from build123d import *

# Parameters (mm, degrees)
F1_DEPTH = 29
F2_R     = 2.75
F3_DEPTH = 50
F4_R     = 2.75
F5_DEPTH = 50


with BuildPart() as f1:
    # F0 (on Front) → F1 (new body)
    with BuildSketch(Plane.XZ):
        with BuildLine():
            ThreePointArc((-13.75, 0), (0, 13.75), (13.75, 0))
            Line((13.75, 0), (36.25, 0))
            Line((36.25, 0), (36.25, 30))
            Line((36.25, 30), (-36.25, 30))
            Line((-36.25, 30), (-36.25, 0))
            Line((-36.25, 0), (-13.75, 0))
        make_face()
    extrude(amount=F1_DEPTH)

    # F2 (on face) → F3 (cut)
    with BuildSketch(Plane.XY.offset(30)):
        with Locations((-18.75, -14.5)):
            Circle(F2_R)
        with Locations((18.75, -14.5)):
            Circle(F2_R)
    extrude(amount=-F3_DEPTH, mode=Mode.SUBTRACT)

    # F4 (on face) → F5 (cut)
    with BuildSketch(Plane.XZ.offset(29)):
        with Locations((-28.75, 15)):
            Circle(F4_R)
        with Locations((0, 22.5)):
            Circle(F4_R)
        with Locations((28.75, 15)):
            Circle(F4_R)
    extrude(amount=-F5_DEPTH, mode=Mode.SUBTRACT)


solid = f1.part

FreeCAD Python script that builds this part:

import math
import FreeCAD as App
import Part
import Sketcher
Q = App.Units.Quantity

doc = App.newDocument("Part")
body = doc.addObject("PartDesign::Body", "Body")

# Sketch on XZ plane
sketch1 = body.newObject("Sketcher::SketchObject", "Sketch")
sketch1.AttachmentSupport = (doc.getObject("XZ_Plane"), [""])
sketch1.MapMode = "FlatFace"
sketch1.addGeometry([
    Part.ArcOfCircle(Part.Circle(App.Vector(0, 0, 0), App.Vector(0, 0, 1), 14), math.radians(0), math.radians(180)),  # 0
    Part.LineSegment(App.Vector(14, 0, 0), App.Vector(36, 0, 0)),  # 1
    Part.LineSegment(App.Vector(36, 0, 0), App.Vector(36, 30, 0)),  # 2
    Part.LineSegment(App.Vector(36, 30, 0), App.Vector(-36, 30, 0)),  # 3
    Part.LineSegment(App.Vector(-36, 30, 0), App.Vector(-36, 0, 0)),  # 4
    Part.LineSegment(App.Vector(-36, 0, 0), App.Vector(-14, 0, 0)),  # 5
], False)
sketch1.addConstraint([
    Sketcher.Constraint("Coincident", 0, 1, 1, 1),
    Sketcher.Constraint("Coincident", 1, 2, 2, 1),
    Sketcher.Constraint("Coincident", 2, 2, 3, 1),
    Sketcher.Constraint("Coincident", 3, 2, 4, 1),
    Sketcher.Constraint("Coincident", 4, 2, 5, 1),
    Sketcher.Constraint("Coincident", 5, 2, 0, 2),
    Sketcher.Constraint("Horizontal", 1),
    Sketcher.Constraint("Vertical", 2),
    Sketcher.Constraint("Horizontal", 3),
    Sketcher.Constraint("Vertical", 4),
    Sketcher.Constraint("Horizontal", 5),
    Sketcher.Constraint("Coincident", 0, 3, -1, 1),
    Sketcher.Constraint("Symmetric", 1, 2, 4, 2, -1, 1),
    Sketcher.Constraint("PointOnObject", 0, 1, -1),
    Sketcher.Constraint("DistanceY", 2, 1, 2, 2, Q("30 mm")),
    Sketcher.Constraint("Radius", 0, Q("13.75 mm")),
    Sketcher.Constraint("DistanceX", 1, 1, 1, 2, Q("22.5 mm")),
])
pad1 = body.newObject("PartDesign::Pad", "Pad")
pad1.Profile = sketch1
pad1.Length = 29

# Sketch on XY plane
sketch2 = body.newObject("Sketcher::SketchObject", "Sketch001")
sketch2.AttachmentSupport = (doc.getObject("XY_Plane"), [""])
sketch2.MapMode = "FlatFace"
sketch2.AttachmentOffset = App.Placement(App.Vector(0, 0, 30), App.Rotation())
sketch2.addGeometry([
    Part.Circle(App.Vector(-18.8, -14.5, 0), App.Vector(0, 0, 1), 2.8),
    Part.Circle(App.Vector(18.8, -14.5, 0), App.Vector(0, 0, 1), 2.8),
], False)
sketch2.addConstraint([
    Sketcher.Constraint("Equal", 0, 1),
    Sketcher.Constraint("Symmetric", 0, 3, 1, 3, -2),
    Sketcher.Constraint("Diameter", 0, Q("5.5 mm")),
    Sketcher.Constraint("DistanceY", 0, 3, -1, 1, Q("14.5 mm")),
    Sketcher.Constraint("DistanceX", 0, 3, 1, 3, Q("37.5 mm")),
])
pocket1 = body.newObject("PartDesign::Pocket", "Pocket")
pocket1.Profile = sketch2
pocket1.Length = 50

# Sketch on XZ plane
sketch3 = body.newObject("Sketcher::SketchObject", "Sketch002")
sketch3.AttachmentSupport = (doc.getObject("XZ_Plane"), [""])
sketch3.MapMode = "FlatFace"
sketch3.AttachmentOffset = App.Placement(App.Vector(0, 0, 29), App.Rotation())
sketch3.addGeometry([
    Part.Circle(App.Vector(-28.8, 15, 0), App.Vector(0, 0, 1), 2.8),
    Part.Circle(App.Vector(0, 22.5, 0), App.Vector(0, 0, 1), 2.8),
    Part.Circle(App.Vector(28.8, 15, 0), App.Vector(0, 0, 1), 2.8),
], False)
sketch3.addConstraint([
    Sketcher.Constraint("Equal", 0, 1),
    Sketcher.Constraint("Equal", 1, 2),
    Sketcher.Constraint("Symmetric", 0, 3, 2, 3, -2),
    Sketcher.Constraint("PointOnObject", 1, 3, -2),
    Sketcher.Constraint("Diameter", 0, Q("5.5 mm")),
    Sketcher.Constraint("DistanceY", -1, 1, 0, 3, Q("15 mm")),
    Sketcher.Constraint("DistanceY", -1, 1, 1, 3, Q("22.5 mm")),
    Sketcher.Constraint("DistanceX", 0, 3, 2, 3, Q("57.5 mm")),
])
pocket2 = body.newObject("PartDesign::Pocket", "Pocket001")
pocket2.Profile = sketch3
pocket2.Length = 50

doc.recompute()
